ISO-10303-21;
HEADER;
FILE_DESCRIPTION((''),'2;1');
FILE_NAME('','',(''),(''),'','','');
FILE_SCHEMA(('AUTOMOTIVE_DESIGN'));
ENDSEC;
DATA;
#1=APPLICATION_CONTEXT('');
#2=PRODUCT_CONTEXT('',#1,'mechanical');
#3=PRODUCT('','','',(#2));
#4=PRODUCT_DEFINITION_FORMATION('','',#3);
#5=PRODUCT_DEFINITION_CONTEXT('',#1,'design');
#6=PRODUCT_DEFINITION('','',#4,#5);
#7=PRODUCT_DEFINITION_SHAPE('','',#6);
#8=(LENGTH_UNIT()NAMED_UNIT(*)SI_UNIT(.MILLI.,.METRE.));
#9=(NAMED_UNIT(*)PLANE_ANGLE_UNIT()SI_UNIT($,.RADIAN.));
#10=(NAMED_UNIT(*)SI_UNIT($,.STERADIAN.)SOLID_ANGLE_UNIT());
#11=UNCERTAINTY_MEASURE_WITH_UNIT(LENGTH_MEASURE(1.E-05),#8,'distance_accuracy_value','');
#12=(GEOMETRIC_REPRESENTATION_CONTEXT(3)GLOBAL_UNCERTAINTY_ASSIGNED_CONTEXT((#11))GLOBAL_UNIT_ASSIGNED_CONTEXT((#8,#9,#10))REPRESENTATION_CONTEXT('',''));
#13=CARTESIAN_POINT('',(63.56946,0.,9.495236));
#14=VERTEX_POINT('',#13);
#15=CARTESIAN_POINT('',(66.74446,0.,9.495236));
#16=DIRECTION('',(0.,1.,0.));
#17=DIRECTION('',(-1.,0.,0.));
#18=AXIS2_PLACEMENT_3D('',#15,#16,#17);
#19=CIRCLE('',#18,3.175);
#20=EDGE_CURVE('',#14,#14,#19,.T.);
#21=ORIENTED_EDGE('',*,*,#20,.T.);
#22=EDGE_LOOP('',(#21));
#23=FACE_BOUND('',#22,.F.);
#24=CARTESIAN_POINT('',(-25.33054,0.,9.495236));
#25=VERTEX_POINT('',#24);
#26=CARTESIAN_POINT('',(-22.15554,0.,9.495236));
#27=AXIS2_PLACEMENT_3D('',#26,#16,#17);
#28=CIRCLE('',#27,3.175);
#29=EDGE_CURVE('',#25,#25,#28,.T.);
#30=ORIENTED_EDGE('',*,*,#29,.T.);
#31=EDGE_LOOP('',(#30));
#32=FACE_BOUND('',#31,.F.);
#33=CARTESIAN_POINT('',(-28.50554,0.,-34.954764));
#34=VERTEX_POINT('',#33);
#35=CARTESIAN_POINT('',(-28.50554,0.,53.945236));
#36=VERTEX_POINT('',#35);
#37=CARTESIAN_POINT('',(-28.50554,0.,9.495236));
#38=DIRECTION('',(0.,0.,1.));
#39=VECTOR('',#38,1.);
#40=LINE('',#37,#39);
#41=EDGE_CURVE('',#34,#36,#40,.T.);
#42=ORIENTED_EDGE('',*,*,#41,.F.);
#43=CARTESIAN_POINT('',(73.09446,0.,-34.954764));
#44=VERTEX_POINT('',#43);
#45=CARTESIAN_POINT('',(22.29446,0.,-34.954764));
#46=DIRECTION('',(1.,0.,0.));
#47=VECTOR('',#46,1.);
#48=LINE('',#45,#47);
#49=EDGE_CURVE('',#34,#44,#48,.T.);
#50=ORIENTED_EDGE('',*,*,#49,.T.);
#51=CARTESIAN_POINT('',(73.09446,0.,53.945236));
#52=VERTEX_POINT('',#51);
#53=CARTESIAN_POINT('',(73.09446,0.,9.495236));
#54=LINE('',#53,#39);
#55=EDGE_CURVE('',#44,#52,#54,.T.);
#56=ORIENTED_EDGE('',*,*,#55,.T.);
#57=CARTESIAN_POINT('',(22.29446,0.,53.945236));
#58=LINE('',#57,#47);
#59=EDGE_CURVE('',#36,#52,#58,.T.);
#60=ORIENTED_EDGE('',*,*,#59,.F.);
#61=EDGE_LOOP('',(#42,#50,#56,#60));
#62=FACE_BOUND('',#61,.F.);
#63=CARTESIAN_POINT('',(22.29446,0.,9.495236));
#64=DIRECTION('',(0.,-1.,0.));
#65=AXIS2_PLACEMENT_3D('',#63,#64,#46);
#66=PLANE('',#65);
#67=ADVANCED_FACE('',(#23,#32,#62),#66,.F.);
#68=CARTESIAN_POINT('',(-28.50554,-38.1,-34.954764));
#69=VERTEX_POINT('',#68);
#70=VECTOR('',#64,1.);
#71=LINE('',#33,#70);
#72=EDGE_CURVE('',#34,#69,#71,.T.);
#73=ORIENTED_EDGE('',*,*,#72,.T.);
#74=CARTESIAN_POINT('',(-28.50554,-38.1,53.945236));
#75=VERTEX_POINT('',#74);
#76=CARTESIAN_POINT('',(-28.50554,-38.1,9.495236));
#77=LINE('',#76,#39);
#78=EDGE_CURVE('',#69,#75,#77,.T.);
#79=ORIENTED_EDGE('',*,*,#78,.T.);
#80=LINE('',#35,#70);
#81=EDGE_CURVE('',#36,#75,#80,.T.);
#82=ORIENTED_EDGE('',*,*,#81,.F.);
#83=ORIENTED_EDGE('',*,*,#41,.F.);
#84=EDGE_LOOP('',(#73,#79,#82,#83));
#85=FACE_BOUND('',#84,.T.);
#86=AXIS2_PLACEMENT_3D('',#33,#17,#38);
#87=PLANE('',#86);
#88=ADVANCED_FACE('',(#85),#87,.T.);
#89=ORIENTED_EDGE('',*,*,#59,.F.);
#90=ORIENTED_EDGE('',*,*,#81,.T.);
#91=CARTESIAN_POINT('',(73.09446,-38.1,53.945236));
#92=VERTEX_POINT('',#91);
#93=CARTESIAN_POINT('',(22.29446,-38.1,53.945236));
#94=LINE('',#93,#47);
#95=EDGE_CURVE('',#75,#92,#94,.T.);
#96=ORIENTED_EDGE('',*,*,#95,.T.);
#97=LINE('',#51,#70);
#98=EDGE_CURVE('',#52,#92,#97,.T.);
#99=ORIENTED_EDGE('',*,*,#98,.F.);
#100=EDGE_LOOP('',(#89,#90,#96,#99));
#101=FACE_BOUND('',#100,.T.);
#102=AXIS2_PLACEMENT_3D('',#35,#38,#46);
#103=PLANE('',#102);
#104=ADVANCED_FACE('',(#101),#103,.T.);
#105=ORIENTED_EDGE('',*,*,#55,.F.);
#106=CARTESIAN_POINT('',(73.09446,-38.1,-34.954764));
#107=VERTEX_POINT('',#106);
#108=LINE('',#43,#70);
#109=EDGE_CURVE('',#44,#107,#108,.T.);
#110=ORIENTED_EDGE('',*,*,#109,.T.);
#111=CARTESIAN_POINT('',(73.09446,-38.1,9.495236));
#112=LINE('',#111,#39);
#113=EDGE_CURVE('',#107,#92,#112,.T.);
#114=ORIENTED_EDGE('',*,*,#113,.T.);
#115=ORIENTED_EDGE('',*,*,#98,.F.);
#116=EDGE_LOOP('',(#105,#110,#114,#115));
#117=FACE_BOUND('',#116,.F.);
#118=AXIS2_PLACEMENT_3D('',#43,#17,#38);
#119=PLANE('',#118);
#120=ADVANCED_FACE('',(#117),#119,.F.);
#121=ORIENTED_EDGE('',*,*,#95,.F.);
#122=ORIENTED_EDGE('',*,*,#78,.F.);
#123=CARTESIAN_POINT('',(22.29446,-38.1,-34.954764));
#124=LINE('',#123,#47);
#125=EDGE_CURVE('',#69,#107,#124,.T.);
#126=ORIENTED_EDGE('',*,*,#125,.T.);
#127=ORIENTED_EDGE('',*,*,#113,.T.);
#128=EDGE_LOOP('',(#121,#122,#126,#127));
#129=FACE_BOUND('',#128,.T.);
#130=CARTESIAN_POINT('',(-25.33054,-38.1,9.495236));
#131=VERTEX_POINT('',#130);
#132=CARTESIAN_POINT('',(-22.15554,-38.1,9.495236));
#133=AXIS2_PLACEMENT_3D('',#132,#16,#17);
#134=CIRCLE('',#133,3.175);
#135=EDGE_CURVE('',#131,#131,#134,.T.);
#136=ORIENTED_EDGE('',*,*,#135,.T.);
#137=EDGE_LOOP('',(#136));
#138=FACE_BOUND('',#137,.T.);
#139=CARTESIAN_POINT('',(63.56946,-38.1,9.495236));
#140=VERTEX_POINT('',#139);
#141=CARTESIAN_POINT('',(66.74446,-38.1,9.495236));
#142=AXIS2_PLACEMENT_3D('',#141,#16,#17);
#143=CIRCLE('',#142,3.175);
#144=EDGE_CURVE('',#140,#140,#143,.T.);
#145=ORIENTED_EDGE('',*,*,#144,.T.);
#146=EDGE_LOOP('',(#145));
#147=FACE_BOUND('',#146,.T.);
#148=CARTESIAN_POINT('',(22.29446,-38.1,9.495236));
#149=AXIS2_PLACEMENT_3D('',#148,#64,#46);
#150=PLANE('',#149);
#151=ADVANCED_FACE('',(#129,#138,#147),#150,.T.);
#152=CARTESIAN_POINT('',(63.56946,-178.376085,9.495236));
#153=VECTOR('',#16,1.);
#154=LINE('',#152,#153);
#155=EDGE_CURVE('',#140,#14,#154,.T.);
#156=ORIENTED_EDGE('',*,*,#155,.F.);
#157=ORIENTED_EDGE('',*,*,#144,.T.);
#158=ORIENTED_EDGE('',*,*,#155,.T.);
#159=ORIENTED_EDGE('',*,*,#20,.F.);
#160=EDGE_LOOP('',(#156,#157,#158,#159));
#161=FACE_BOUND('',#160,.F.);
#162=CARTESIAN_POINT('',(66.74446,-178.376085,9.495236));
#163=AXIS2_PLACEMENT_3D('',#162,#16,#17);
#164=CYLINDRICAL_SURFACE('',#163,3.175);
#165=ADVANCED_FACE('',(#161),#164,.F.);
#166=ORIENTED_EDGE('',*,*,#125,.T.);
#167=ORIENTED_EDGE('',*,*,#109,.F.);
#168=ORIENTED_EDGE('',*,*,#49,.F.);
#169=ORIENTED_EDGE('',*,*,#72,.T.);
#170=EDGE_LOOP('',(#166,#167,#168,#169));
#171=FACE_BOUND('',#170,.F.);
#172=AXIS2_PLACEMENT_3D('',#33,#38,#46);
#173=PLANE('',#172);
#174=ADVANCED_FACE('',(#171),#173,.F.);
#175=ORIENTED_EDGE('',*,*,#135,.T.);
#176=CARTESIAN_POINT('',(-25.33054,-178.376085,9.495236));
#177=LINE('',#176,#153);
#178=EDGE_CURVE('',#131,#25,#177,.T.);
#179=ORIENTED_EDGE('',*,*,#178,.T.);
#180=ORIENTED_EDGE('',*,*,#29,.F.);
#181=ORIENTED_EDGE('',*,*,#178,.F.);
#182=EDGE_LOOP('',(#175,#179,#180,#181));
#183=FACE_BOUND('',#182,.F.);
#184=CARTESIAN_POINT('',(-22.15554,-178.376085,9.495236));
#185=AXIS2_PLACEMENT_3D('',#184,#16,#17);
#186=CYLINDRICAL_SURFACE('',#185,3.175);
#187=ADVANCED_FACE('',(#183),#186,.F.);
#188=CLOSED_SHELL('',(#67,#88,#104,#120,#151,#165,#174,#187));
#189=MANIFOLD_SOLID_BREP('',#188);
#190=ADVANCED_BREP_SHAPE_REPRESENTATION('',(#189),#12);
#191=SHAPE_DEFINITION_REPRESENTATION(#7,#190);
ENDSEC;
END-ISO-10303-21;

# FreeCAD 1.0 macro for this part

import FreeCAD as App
import Part
import Sketcher
Q = App.Units.Quantity

doc = App.newDocument("Part")
params = doc.addObject("Spreadsheet::Sheet", "Params")
for row, (alias, value) in enumerate([
    ("sketch1_width", "4 in"),
    ("sketch1_height", "3.5 in"),
    ("pad1_length", "1.5 in"),
    ("sketch2_diameter", "0.25 in"),
    ("hole_diameter", "0.25 in"),
    ("sketch3_diameter", "0.25 in"),
    ("hole2_diameter", "0.25 in"),
], start=1):
    params.set(f"A{row}", alias)
    params.set(f"B{row}", "=" + value)
    params.setAlias(f"B{row}", alias)

body = doc.addObject("PartDesign::Body", "Body")

sketch1 = body.newObject("Sketcher::SketchObject", "Sketch")
sketch1.AttachmentSupport = (doc.getObject("XZ_Plane"), [""])
sketch1.MapMode = "FlatFace"
sketch1.addGeometry([
    Part.LineSegment(App.Vector(-29, 54, 0), App.Vector(-29, -35, 0)),
    Part.LineSegment(App.Vector(-29, -35, 0), App.Vector(73, -35, 0)),
    Part.LineSegment(App.Vector(73, -35, 0), App.Vector(73, 54, 0)),
    Part.LineSegment(App.Vector(73, 54, 0), App.Vector(-29, 54, 0)),
], False)
sketch1.addConstraint([
    Sketcher.Constraint("Coincident", 0, 2, 1, 1),
    Sketcher.Constraint("Coincident", 1, 2, 2, 1),
    Sketcher.Constraint("Coincident", 2, 2, 3, 1),
    Sketcher.Constraint("Coincident", 3, 2, 0, 1),
    Sketcher.Constraint("Vertical", 0),
    Sketcher.Constraint("Horizontal", 1),
    Sketcher.Constraint("Vertical", 2),
    Sketcher.Constraint("Horizontal", 3),
    Sketcher.Constraint("DistanceX", 1, 1, 1, 2, Q("4 in")),
    Sketcher.Constraint("DistanceY", 0, 2, 0, 1, Q("3.5 in")),
    Sketcher.Constraint("DistanceX", 0, 2, -1, 1, Q("28.50554 mm")),
    Sketcher.Constraint("DistanceY", 0, 2, -1, 1, Q("34.954764 mm")),
])
sketch1.setExpression("Constraints[8]", "Params.sketch1_width")
sketch1.setExpression("Constraints[9]", "Params.sketch1_height")
pad1 = body.newObject("PartDesign::Pad", "Pad")
pad1.Profile = sketch1
pad1.setExpression("Length", "Params.pad1_length")

sketch2 = body.newObject("Sketcher::SketchObject", "Sketch001")
sketch2.AttachmentSupport = (doc.getObject("XZ_Plane"), [""])
sketch2.MapMode = "FlatFace"
sketch2.AttachmentOffset = App.Placement(App.Vector(0, 0, 1.5 * 25.4), App.Rotation())
sketch2.addGeometry(Part.Circle(App.Vector(-22.2, 9.5, 0), App.Vector(0, 0, 1), 3.2), False)
sketch2.addConstraint([
    Sketcher.Constraint("Diameter", 0, Q("0.25 in")),
    Sketcher.Constraint("DistanceX", 0, 3, -1, 1, Q("22.15554 mm")),
    Sketcher.Constraint("DistanceY", -1, 1, 0, 3, Q("9.495236 mm")),
])
sketch2.setExpression("Constraints[0]", "Params.sketch2_diameter")
doc.recompute()
hole = body.newObject("PartDesign::Hole", "Hole")
hole.Profile = sketch2
hole.ThreadType = "None"
hole.setExpression("Diameter", "Params.hole_diameter")
hole.DepthType = "ThroughAll"

sketch3 = body.newObject("Sketcher::SketchObject", "Sketch002")
sketch3.AttachmentSupport = (doc.getObject("XZ_Plane"), [""])
sketch3.MapMode = "FlatFace"
sketch3.AttachmentOffset = App.Placement(App.Vector(0, 0, 1.5 * 25.4), App.Rotation())
sketch3.addGeometry(Part.Circle(App.Vector(66.7, 9.5, 0), App.Vector(0, 0, 1), 3.2), False)
sketch3.addConstraint([
    Sketcher.Constraint("Diameter", 0, Q("0.25 in")),
    Sketcher.Constraint("DistanceX", -1, 1, 0, 3, Q("66.74446 mm")),
    Sketcher.Constraint("DistanceY", -1, 1, 0, 3, Q("9.495236 mm")),
])
sketch3.setExpression("Constraints[0]", "Params.sketch3_diameter")
doc.recompute()
hole2 = body.newObject("PartDesign::Hole", "Hole001")
hole2.Profile = sketch3
hole2.ThreadType = "None"
hole2.setExpression("Diameter", "Params.hole2_diameter")
hole2.DepthType = "ThroughAll"

doc.recompute()
